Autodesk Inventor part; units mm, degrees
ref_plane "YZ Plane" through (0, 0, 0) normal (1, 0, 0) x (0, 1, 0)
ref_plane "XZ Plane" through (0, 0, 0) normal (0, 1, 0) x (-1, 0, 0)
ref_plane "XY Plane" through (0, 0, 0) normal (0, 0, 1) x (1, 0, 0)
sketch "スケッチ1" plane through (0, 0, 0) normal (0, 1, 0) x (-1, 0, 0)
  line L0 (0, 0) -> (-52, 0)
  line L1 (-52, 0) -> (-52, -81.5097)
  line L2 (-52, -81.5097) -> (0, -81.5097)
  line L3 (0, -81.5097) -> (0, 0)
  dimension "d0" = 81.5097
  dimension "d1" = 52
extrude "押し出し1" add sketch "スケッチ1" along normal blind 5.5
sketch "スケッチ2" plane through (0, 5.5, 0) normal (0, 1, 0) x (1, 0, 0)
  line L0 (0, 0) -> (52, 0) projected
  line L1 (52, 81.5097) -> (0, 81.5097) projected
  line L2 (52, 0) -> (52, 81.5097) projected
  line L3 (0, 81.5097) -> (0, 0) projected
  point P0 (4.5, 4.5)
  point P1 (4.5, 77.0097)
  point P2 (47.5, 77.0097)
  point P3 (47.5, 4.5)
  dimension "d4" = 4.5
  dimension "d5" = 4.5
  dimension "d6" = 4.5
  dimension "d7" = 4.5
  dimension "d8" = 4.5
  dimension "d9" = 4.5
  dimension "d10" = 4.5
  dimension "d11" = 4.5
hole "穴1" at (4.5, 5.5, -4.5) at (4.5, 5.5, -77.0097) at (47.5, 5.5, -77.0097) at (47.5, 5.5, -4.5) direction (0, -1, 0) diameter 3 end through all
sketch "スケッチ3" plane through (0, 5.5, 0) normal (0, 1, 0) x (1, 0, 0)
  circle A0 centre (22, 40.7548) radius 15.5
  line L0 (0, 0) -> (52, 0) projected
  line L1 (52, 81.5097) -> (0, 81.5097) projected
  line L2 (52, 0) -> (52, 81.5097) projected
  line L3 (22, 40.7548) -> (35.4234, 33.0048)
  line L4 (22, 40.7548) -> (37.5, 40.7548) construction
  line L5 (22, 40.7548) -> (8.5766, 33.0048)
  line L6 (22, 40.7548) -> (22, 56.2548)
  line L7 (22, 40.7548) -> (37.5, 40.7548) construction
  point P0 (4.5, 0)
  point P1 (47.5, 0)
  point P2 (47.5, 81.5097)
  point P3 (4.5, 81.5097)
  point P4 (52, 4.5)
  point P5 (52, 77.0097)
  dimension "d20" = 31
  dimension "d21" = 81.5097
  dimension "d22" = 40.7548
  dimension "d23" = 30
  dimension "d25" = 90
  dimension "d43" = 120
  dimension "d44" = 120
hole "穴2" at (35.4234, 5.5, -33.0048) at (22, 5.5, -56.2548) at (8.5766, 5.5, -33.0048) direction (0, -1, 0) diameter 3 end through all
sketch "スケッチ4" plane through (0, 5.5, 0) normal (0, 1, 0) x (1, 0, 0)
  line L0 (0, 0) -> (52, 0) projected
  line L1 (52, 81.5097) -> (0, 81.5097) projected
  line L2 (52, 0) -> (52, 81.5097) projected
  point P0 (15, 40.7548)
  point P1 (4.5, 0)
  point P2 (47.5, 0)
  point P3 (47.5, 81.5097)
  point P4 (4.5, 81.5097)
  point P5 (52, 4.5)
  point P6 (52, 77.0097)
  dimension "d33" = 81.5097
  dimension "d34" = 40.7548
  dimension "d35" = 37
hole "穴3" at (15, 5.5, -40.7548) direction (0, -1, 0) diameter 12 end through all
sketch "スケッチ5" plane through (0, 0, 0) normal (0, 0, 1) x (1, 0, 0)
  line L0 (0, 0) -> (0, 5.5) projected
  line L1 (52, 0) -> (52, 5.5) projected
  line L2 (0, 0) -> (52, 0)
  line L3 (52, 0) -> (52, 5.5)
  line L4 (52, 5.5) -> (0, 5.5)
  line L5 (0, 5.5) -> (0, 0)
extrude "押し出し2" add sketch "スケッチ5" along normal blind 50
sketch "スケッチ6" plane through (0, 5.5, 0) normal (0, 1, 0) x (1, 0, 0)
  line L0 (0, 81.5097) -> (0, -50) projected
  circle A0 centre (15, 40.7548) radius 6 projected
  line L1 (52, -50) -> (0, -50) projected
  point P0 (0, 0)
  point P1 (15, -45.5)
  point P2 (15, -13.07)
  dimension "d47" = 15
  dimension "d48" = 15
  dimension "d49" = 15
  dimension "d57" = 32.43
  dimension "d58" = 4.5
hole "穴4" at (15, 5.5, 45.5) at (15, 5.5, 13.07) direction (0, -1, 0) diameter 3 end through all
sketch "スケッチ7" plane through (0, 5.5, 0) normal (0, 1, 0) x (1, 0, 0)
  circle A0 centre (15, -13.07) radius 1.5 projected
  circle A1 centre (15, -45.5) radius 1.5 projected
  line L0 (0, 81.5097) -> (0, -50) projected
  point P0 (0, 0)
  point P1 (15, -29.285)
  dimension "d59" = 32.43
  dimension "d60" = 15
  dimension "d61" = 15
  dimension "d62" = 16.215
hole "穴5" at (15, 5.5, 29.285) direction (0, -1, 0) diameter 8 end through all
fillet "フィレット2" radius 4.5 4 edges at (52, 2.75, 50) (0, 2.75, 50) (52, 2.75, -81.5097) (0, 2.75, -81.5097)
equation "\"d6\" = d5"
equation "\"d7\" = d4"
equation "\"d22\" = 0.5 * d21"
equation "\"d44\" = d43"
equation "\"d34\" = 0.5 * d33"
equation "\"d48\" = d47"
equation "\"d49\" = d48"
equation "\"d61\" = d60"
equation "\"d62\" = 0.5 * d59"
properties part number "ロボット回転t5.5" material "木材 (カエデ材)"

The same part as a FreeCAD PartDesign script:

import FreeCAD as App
import Part
import Sketcher

V = App.Vector


def edges_at(feature, points):
    """Names of the edges that pass closest to the given points."""
    edges = feature.Shape.Edges
    near = lambda p: min(range(len(edges)), key=lambda i: edges[i].distToShape(Part.Vertex(*p))[0])
    return sorted({f"Edge{near(p) + 1}" for p in points})

doc = App.newDocument("Part")
body = doc.addObject("PartDesign::Body", "Body")

# Sketch on XZ plane
sketch1 = body.newObject("Sketcher::SketchObject", "Sketch")
sketch1.AttachmentSupport = (doc.getObject("XZ_Plane"), [""])
sketch1.MapMode = "FlatFace"
sketch1.addGeometry([
    Part.LineSegment(V(0, -81.5097, 0), V(0, 0, 0)),
    Part.LineSegment(V(0, 0, 0), V(52, 0, 0)),
    Part.LineSegment(V(52, 0, 0), V(52, -81.5097, 0)),
    Part.LineSegment(V(52, -81.5097, 0), V(0, -81.5097, 0)),
], False)
sketch1.addConstraint([
    Sketcher.Constraint("Coincident", 0, 2, 1, 1),
    Sketcher.Constraint("Coincident", 1, 2, 2, 1),
    Sketcher.Constraint("Coincident", 2, 2, 3, 1),
    Sketcher.Constraint("Coincident", 3, 2, 0, 1),
    Sketcher.Constraint("Vertical", 0),
    Sketcher.Constraint("Horizontal", 1),
    Sketcher.Constraint("Vertical", 2),
    Sketcher.Constraint("Horizontal", 3),
    Sketcher.Constraint("Coincident", 0, 2, -1, 1),
    Sketcher.Constraint("DistanceX", 1, 1, 1, 2, 52.0),
    Sketcher.Constraint("DistanceY", 0, 1, 0, 2, 81.5097),
])
pad1 = body.newObject("PartDesign::Pad", "Pad")
pad1.Profile = sketch1
pad1.Length = 5.5
pad1.Reversed = True

# Sketch on XZ plane
sketch2 = body.newObject("Sketcher::SketchObject", "Sketch001")
sketch2.AttachmentSupport = (doc.getObject("XZ_Plane"), [""])
sketch2.MapMode = "FlatFace"
sketch2.AttachmentOffset = App.Placement(V(0, 0, -5.5), App.Rotation())
sketch2.addGeometry([
    Part.Circle(V(4.5, -4.5, 0), V(0, 0, 1), 1.5),
    Part.Circle(V(4.5, -77.0097, 0), V(0, 0, 1), 1.5),
    Part.Circle(V(47.5, -77.0097, 0), V(0, 0, 1), 1.5),
    Part.Circle(V(47.5, -4.5, 0), V(0, 0, 1), 1.5),
], False)
sketch2.addConstraint([
    Sketcher.Constraint("Equal", 0, 1),
    Sketcher.Constraint("Equal", 1, 2),
    Sketcher.Constraint("Equal", 2, 3),
    Sketcher.Constraint("Horizontal", 1, 3, 2, 3),
    Sketcher.Constraint("Horizontal", 0, 3, 3, 3),
    Sketcher.Constraint("Vertical", 0, 3, 1, 3),
    Sketcher.Constraint("Vertical", 2, 3, 3, 3),
    Sketcher.Constraint("Diameter", 0, 3.0),
    Sketcher.Constraint("DistanceX", 1, 3, 2, 3, 43.0),
    Sketcher.Constraint("DistanceX", -1, 1, 0, 3, 4.5),
    Sketcher.Constraint("DistanceY", 0, 3, -1, 1, 4.5),
    Sketcher.Constraint("DistanceY", 1, 3, -1, 1, 77.0097),
])
doc.recompute()
hole = body.newObject("PartDesign::Hole", "Hole")
hole.Profile = sketch2
hole.ThreadType = "None"
hole.Diameter = 3
hole.DepthType = "ThroughAll"
hole.Reversed = True

# Sketch on XZ plane
sketch3 = body.newObject("Sketcher::SketchObject", "Sketch002")
sketch3.AttachmentSupport = (doc.getObject("XZ_Plane"), [""])
sketch3.MapMode = "FlatFace"
sketch3.AttachmentOffset = App.Placement(V(0, 0, -5.5), App.Rotation())
sketch3.addGeometry([
    Part.Circle(V(35.4234, -33.0048, 0), V(0, 0, 1), 1.5),
    Part.Circle(V(22, -56.2548, 0), V(0, 0, 1), 1.5),
    Part.Circle(V(8.5766, -33.0048, 0), V(0, 0, 1), 1.5),
], False)
sketch3.addConstraint([
    Sketcher.Constraint("Equal", 0, 1),
    Sketcher.Constraint("Equal", 1, 2),
    Sketcher.Constraint("Horizontal", 0, 3, 2, 3),
    Sketcher.Constraint("Diameter", 0, 3.0),
    Sketcher.Constraint("DistanceX", -1, 1, 1, 3, 22.0),
    Sketcher.Constraint("DistanceY", 1, 3, 0, 3, 23.25),
    Sketcher.Constraint("DistanceX", -1, 1, 0, 3, 35.4234),
    Sketcher.Constraint("DistanceY", 0, 3, -1, 1, 33.0048),
    Sketcher.Constraint("DistanceX", -1, 1, 2, 3, 8.5766),
])
doc.recompute()
hole2 = body.newObject("PartDesign::Hole", "Hole001")
hole2.Profile = sketch3
hole2.ThreadType = "None"
hole2.Diameter = 3
hole2.DepthType = "ThroughAll"
hole2.Reversed = True

# Sketch on XZ plane
sketch4 = body.newObject("Sketcher::SketchObject", "Sketch003")
sketch4.AttachmentSupport = (doc.getObject("XZ_Plane"), [""])
sketch4.MapMode = "FlatFace"
sketch4.AttachmentOffset = App.Placement(V(0, 0, -5.5), App.Rotation())
sketch4.addGeometry(Part.Circle(V(15, -40.7548, 0), V(0, 0, 1), 6), False)
sketch4.addConstraint([
    Sketcher.Constraint("Diameter", 0, 12.0),
    Sketcher.Constraint("DistanceX", -1, 1, 0, 3, 15.0),
    Sketcher.Constraint("DistanceY", 0, 3, -1, 1, 40.7548),
])
doc.recompute()
hole3 = body.newObject("PartDesign::Hole", "Hole002")
hole3.Profile = sketch4
hole3.ThreadType = "None"
hole3.Diameter = 12
hole3.DepthType = "ThroughAll"
hole3.Reversed = True

# Sketch on XY plane
sketch5 = body.newObject("Sketcher::SketchObject", "Sketch004")
sketch5.AttachmentSupport = (doc.getObject("XY_Plane"), [""])
sketch5.MapMode = "FlatFace"
sketch5.addGeometry([
    Part.LineSegment(V(0, 5.5, 0), V(0, 0, 0)),
    Part.LineSegment(V(0, 0, 0), V(52, 0, 0)),
    Part.LineSegment(V(52, 0, 0), V(52, 5.5, 0)),
    Part.LineSegment(V(52, 5.5, 0), V(0, 5.5, 0)),
], False)
sketch5.addConstraint([
    Sketcher.Constraint("Coincident", 0, 2, 1, 1),
    Sketcher.Constraint("Coincident", 1, 2, 2, 1),
    Sketcher.Constraint("Coincident", 2, 2, 3, 1),
    Sketcher.Constraint("Coincident", 3, 2, 0, 1),
    Sketcher.Constraint("Vertical", 0),
    Sketcher.Constraint("Horizontal", 1),
    Sketcher.Constraint("Vertical", 2),
    Sketcher.Constraint("Horizontal", 3),
    Sketcher.Constraint("Coincident", 0, 2, -1, 1),
    Sketcher.Constraint("DistanceX", 1, 1, 1, 2, 52.0),
    Sketcher.Constraint("DistanceY", 0, 2, 0, 1, 5.5),
])
pad2 = body.newObject("PartDesign::Pad", "Pad001")
pad2.Profile = sketch5
pad2.Length = 50

# Sketch on XZ plane
sketch6 = body.newObject("Sketcher::SketchObject", "Sketch005")
sketch6.AttachmentSupport = (doc.getObject("XZ_Plane"), [""])
sketch6.MapMode = "FlatFace"
sketch6.AttachmentOffset = App.Placement(V(0, 0, -5.5), App.Rotation())
sketch6.addGeometry([
    Part.Circle(V(15, 45.5, 0), V(0, 0, 1), 1.5),
    Part.Circle(V(15, 13.07, 0), V(0, 0, 1), 1.5),
], False)
sketch6.addConstraint([
    Sketcher.Constraint("Equal", 0, 1),
    Sketcher.Constraint("Vertical", 0, 3, 1, 3),
    Sketcher.Constraint("Diameter", 0, 3.0),
    Sketcher.Constraint("DistanceX", -1, 1, 0, 3, 15.0),
    Sketcher.Constraint("DistanceY", -1, 1, 0, 3, 45.5),
    Sketcher.Constraint("DistanceY", -1, 1, 1, 3, 13.07),
])
doc.recompute()
hole4 = body.newObject("PartDesign::Hole", "Hole003")
hole4.Profile = sketch6
hole4.ThreadType = "None"
hole4.Diameter = 3
hole4.DepthType = "ThroughAll"
hole4.Reversed = True

# Sketch on XZ plane
sketch7 = body.newObject("Sketcher::SketchObject", "Sketch006")
sketch7.AttachmentSupport = (doc.getObject("XZ_Plane"), [""])
sketch7.MapMode = "FlatFace"
sketch7.AttachmentOffset = App.Placement(V(0, 0, -5.5), App.Rotation())
sketch7.addGeometry(Part.Circle(V(15, 29.285, 0), V(0, 0, 1), 4), False)
sketch7.addConstraint([
    Sketcher.Constraint("Diameter", 0, 8.0),
    Sketcher.Constraint("DistanceX", -1, 1, 0, 3, 15.0),
    Sketcher.Constraint("DistanceY", -1, 1, 0, 3, 29.285),
])
doc.recompute()
hole5 = body.newObject("PartDesign::Hole", "Hole004")
hole5.Profile = sketch7
hole5.ThreadType = "None"
hole5.Diameter = 8
hole5.DepthType = "ThroughAll"
hole5.Reversed = True
doc.recompute()

fillet = body.newObject("PartDesign::Fillet", "Fillet")
fillet.Base = (hole5, edges_at(hole5, [
    (52, 2.75, 50),
    (0, 2.75, 50),
    (52, 2.75, -81.51),
    (0, 2.75, -81.51),
]))
fillet.Radius = 4.5

doc.recompute()
